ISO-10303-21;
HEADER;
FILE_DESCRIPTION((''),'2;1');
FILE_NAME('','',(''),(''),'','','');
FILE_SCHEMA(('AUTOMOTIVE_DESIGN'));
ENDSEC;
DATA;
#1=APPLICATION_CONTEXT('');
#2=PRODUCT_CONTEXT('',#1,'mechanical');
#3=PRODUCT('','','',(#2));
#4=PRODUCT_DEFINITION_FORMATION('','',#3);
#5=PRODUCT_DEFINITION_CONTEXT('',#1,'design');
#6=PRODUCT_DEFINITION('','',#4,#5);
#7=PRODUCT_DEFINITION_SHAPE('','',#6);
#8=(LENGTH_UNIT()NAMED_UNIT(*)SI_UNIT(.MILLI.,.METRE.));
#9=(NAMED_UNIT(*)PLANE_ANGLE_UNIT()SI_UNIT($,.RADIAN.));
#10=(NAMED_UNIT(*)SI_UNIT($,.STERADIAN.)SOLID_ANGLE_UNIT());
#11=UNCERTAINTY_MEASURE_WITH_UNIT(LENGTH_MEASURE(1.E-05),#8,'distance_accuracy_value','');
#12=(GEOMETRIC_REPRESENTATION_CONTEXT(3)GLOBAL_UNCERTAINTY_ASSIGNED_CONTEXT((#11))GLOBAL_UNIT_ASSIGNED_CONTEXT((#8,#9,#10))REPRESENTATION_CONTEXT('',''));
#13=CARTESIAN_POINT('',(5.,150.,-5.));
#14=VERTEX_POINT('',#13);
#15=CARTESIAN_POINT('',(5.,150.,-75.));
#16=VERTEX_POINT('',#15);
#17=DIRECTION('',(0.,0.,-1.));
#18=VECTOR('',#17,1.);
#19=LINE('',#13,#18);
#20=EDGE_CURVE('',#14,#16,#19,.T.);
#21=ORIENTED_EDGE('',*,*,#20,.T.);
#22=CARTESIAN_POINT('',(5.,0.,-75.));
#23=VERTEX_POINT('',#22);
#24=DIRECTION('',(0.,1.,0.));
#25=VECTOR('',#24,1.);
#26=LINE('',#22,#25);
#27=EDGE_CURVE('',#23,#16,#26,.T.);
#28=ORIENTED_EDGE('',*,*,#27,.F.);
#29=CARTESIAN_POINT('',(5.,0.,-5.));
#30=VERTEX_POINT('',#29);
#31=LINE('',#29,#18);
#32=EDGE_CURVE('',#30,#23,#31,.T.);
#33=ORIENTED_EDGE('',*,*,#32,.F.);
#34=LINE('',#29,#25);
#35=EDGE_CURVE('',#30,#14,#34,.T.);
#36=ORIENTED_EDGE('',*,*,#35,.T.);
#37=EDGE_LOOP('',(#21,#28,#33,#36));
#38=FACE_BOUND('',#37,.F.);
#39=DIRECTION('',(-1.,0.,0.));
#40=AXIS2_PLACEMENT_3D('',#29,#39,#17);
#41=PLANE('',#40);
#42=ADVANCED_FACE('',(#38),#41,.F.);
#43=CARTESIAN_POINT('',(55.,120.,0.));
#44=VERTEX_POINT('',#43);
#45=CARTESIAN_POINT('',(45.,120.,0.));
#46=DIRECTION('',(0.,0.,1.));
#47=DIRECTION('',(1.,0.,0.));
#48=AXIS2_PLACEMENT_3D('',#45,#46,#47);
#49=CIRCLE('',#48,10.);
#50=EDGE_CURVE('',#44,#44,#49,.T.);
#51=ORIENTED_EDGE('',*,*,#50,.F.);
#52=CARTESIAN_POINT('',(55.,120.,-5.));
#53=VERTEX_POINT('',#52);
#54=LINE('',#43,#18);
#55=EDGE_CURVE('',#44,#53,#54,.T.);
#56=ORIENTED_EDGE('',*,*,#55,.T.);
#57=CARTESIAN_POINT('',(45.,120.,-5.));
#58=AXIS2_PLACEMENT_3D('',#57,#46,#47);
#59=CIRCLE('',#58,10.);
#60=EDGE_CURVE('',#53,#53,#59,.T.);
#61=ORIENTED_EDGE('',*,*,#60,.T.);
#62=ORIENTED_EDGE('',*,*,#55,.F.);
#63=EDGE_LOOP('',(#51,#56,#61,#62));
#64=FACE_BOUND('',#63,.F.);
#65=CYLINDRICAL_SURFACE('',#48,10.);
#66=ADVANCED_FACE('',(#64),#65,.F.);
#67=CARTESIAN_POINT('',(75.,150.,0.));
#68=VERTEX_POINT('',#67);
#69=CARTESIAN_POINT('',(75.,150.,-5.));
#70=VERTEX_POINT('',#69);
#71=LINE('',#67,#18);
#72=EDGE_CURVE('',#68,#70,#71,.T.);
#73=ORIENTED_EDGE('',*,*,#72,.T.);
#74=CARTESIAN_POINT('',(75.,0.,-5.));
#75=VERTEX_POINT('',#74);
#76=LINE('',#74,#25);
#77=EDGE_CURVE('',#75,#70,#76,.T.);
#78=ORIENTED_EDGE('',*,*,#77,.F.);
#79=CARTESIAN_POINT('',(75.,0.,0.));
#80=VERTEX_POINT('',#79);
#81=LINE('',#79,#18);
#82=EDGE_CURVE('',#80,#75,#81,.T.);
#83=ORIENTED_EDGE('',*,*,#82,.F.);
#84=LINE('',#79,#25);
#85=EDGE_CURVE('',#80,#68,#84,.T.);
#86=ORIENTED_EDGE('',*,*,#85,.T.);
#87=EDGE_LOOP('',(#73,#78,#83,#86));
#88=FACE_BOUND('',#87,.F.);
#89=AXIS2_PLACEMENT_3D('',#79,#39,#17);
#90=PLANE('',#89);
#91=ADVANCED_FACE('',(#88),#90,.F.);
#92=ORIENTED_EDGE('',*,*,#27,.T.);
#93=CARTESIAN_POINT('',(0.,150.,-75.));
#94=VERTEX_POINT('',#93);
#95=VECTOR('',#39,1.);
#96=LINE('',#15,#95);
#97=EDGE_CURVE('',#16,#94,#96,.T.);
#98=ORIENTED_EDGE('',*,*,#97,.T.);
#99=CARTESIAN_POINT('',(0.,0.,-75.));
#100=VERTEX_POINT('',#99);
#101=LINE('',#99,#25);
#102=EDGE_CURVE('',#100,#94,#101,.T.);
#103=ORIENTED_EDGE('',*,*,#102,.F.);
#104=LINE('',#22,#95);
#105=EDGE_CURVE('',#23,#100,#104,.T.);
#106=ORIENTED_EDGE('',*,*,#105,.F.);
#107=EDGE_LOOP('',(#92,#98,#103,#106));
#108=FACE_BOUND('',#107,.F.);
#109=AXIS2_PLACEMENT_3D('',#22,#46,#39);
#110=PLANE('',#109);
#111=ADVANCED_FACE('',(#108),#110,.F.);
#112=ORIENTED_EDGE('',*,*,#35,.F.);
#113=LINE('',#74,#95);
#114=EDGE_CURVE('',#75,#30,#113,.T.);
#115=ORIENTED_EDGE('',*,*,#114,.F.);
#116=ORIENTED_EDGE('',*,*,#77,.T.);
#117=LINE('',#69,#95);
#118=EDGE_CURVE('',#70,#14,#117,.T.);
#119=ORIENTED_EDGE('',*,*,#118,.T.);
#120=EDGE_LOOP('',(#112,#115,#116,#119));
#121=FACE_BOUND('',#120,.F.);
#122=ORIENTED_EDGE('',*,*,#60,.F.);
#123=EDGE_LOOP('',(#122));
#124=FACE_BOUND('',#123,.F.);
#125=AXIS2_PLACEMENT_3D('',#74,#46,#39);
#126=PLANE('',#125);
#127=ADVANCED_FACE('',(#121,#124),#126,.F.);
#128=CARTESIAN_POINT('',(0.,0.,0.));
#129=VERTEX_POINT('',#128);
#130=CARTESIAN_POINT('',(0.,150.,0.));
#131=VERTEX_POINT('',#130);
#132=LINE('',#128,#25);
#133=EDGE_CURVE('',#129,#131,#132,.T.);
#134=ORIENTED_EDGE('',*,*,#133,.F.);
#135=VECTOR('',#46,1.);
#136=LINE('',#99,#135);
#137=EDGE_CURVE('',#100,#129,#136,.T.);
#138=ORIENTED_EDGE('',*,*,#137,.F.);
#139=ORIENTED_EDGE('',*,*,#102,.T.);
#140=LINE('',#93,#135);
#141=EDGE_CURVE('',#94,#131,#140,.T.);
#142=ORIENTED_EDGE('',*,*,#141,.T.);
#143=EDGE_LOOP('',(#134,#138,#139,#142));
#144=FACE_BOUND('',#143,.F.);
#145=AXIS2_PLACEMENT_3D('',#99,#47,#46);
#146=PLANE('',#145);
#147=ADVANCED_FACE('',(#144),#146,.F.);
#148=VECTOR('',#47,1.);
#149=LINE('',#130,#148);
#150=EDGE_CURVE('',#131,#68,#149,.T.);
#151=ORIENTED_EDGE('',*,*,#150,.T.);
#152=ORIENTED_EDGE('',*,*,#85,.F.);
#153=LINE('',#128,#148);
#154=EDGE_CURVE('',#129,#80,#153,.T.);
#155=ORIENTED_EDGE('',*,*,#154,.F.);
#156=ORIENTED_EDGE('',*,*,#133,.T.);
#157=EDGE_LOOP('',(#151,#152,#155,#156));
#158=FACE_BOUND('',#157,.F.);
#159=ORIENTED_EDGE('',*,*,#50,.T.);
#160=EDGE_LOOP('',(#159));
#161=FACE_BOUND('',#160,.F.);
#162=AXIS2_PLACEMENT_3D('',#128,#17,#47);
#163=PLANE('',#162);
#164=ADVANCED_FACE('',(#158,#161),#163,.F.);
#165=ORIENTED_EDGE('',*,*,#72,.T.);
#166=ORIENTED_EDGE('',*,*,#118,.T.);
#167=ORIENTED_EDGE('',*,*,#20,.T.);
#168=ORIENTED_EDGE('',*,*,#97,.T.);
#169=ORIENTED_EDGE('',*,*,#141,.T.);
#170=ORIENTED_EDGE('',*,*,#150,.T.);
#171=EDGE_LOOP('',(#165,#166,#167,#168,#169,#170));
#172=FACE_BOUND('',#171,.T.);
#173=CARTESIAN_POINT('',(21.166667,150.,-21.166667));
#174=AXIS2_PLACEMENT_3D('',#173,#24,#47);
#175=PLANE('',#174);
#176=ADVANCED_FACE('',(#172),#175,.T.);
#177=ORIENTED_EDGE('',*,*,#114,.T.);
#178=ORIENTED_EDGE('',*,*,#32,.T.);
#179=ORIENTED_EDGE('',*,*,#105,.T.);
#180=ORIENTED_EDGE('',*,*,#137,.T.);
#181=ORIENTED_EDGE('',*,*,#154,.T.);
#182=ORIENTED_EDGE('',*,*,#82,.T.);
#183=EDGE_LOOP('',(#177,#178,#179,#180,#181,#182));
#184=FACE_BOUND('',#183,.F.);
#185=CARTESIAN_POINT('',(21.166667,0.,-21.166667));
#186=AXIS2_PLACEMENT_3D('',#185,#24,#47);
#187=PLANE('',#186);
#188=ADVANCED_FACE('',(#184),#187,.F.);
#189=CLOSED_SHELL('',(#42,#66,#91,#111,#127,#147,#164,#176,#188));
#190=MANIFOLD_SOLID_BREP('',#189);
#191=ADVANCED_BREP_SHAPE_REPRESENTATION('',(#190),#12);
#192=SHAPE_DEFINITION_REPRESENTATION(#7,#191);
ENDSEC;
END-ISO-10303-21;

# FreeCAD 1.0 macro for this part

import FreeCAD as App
import Part
import Sketcher
Q = App.Units.Quantity


def add_polygon(sketch, points):
    """Adds a closed chain of lines whose ends are joined by coincident constraints."""
    first, n = sketch.GeometryCount, len(points)
    for a, b in zip(points, points[1:] + points[:1]):
        sketch.addGeometry(Part.LineSegment(App.Vector(*a, 0), App.Vector(*b, 0)), False)
    for i in range(n):
        sketch.addConstraint(Sketcher.Constraint("Coincident", first + i, 2, first + (i + 1) % n, 1))

doc = App.newDocument("Part")
body = doc.addObject("PartDesign::Body", "Body")

sketch1 = body.newObject("Sketcher::SketchObject", "Sketch")
sketch1.AttachmentSupport = (doc.getObject("XZ_Plane"), [""])
sketch1.MapMode = "FlatFace"
add_polygon(sketch1, [(0, -75), (0, 0), (75, 0), (75, -5), (5, -5), (5, -75)])
sketch1.addConstraint([
    Sketcher.Constraint("Vertical", 0),
    Sketcher.Constraint("Horizontal", 1),
    Sketcher.Constraint("Vertical", 2),
    Sketcher.Constraint("Horizontal", 3),
    Sketcher.Constraint("Vertical", 4),
    Sketcher.Constraint("Horizontal", 5),
    Sketcher.Constraint("Coincident", 0, 2, -1, 1),
    Sketcher.Constraint("Equal", 1, 0),
    Sketcher.Constraint("Equal", 5, 2),
    Sketcher.Constraint("DistanceX", 1, 1, 1, 2, Q("75 mm")),
    Sketcher.Constraint("DistanceX", 3, 2, 3, 1, Q("70 mm")),
])
pad1 = body.newObject("PartDesign::Pad", "Pad")
pad1.Profile = sketch1
pad1.Length = 150
pad1.Reversed = True

sketch2 = body.newObject("Sketcher::SketchObject", "Sketch001")
sketch2.AttachmentSupport = (doc.getObject("XY_Plane"), [""])
sketch2.MapMode = "FlatFace"
sketch2.addGeometry(Part.Circle(App.Vector(45, 120, 0), App.Vector(0, 0, 1), 10), False)
sketch2.addConstraint([
    Sketcher.Constraint("Diameter", 0, Q("20 mm")),
    Sketcher.Constraint("DistanceX", -1, 1, 0, 3, Q("45 mm")),
    Sketcher.Constraint("DistanceY", -1, 1, 0, 3, Q("120 mm")),
])
pocket1 = body.newObject("PartDesign::Pocket", "Pocket")
pocket1.Profile = sketch2
pocket1.Type = "ThroughAll"

doc.recompute()
